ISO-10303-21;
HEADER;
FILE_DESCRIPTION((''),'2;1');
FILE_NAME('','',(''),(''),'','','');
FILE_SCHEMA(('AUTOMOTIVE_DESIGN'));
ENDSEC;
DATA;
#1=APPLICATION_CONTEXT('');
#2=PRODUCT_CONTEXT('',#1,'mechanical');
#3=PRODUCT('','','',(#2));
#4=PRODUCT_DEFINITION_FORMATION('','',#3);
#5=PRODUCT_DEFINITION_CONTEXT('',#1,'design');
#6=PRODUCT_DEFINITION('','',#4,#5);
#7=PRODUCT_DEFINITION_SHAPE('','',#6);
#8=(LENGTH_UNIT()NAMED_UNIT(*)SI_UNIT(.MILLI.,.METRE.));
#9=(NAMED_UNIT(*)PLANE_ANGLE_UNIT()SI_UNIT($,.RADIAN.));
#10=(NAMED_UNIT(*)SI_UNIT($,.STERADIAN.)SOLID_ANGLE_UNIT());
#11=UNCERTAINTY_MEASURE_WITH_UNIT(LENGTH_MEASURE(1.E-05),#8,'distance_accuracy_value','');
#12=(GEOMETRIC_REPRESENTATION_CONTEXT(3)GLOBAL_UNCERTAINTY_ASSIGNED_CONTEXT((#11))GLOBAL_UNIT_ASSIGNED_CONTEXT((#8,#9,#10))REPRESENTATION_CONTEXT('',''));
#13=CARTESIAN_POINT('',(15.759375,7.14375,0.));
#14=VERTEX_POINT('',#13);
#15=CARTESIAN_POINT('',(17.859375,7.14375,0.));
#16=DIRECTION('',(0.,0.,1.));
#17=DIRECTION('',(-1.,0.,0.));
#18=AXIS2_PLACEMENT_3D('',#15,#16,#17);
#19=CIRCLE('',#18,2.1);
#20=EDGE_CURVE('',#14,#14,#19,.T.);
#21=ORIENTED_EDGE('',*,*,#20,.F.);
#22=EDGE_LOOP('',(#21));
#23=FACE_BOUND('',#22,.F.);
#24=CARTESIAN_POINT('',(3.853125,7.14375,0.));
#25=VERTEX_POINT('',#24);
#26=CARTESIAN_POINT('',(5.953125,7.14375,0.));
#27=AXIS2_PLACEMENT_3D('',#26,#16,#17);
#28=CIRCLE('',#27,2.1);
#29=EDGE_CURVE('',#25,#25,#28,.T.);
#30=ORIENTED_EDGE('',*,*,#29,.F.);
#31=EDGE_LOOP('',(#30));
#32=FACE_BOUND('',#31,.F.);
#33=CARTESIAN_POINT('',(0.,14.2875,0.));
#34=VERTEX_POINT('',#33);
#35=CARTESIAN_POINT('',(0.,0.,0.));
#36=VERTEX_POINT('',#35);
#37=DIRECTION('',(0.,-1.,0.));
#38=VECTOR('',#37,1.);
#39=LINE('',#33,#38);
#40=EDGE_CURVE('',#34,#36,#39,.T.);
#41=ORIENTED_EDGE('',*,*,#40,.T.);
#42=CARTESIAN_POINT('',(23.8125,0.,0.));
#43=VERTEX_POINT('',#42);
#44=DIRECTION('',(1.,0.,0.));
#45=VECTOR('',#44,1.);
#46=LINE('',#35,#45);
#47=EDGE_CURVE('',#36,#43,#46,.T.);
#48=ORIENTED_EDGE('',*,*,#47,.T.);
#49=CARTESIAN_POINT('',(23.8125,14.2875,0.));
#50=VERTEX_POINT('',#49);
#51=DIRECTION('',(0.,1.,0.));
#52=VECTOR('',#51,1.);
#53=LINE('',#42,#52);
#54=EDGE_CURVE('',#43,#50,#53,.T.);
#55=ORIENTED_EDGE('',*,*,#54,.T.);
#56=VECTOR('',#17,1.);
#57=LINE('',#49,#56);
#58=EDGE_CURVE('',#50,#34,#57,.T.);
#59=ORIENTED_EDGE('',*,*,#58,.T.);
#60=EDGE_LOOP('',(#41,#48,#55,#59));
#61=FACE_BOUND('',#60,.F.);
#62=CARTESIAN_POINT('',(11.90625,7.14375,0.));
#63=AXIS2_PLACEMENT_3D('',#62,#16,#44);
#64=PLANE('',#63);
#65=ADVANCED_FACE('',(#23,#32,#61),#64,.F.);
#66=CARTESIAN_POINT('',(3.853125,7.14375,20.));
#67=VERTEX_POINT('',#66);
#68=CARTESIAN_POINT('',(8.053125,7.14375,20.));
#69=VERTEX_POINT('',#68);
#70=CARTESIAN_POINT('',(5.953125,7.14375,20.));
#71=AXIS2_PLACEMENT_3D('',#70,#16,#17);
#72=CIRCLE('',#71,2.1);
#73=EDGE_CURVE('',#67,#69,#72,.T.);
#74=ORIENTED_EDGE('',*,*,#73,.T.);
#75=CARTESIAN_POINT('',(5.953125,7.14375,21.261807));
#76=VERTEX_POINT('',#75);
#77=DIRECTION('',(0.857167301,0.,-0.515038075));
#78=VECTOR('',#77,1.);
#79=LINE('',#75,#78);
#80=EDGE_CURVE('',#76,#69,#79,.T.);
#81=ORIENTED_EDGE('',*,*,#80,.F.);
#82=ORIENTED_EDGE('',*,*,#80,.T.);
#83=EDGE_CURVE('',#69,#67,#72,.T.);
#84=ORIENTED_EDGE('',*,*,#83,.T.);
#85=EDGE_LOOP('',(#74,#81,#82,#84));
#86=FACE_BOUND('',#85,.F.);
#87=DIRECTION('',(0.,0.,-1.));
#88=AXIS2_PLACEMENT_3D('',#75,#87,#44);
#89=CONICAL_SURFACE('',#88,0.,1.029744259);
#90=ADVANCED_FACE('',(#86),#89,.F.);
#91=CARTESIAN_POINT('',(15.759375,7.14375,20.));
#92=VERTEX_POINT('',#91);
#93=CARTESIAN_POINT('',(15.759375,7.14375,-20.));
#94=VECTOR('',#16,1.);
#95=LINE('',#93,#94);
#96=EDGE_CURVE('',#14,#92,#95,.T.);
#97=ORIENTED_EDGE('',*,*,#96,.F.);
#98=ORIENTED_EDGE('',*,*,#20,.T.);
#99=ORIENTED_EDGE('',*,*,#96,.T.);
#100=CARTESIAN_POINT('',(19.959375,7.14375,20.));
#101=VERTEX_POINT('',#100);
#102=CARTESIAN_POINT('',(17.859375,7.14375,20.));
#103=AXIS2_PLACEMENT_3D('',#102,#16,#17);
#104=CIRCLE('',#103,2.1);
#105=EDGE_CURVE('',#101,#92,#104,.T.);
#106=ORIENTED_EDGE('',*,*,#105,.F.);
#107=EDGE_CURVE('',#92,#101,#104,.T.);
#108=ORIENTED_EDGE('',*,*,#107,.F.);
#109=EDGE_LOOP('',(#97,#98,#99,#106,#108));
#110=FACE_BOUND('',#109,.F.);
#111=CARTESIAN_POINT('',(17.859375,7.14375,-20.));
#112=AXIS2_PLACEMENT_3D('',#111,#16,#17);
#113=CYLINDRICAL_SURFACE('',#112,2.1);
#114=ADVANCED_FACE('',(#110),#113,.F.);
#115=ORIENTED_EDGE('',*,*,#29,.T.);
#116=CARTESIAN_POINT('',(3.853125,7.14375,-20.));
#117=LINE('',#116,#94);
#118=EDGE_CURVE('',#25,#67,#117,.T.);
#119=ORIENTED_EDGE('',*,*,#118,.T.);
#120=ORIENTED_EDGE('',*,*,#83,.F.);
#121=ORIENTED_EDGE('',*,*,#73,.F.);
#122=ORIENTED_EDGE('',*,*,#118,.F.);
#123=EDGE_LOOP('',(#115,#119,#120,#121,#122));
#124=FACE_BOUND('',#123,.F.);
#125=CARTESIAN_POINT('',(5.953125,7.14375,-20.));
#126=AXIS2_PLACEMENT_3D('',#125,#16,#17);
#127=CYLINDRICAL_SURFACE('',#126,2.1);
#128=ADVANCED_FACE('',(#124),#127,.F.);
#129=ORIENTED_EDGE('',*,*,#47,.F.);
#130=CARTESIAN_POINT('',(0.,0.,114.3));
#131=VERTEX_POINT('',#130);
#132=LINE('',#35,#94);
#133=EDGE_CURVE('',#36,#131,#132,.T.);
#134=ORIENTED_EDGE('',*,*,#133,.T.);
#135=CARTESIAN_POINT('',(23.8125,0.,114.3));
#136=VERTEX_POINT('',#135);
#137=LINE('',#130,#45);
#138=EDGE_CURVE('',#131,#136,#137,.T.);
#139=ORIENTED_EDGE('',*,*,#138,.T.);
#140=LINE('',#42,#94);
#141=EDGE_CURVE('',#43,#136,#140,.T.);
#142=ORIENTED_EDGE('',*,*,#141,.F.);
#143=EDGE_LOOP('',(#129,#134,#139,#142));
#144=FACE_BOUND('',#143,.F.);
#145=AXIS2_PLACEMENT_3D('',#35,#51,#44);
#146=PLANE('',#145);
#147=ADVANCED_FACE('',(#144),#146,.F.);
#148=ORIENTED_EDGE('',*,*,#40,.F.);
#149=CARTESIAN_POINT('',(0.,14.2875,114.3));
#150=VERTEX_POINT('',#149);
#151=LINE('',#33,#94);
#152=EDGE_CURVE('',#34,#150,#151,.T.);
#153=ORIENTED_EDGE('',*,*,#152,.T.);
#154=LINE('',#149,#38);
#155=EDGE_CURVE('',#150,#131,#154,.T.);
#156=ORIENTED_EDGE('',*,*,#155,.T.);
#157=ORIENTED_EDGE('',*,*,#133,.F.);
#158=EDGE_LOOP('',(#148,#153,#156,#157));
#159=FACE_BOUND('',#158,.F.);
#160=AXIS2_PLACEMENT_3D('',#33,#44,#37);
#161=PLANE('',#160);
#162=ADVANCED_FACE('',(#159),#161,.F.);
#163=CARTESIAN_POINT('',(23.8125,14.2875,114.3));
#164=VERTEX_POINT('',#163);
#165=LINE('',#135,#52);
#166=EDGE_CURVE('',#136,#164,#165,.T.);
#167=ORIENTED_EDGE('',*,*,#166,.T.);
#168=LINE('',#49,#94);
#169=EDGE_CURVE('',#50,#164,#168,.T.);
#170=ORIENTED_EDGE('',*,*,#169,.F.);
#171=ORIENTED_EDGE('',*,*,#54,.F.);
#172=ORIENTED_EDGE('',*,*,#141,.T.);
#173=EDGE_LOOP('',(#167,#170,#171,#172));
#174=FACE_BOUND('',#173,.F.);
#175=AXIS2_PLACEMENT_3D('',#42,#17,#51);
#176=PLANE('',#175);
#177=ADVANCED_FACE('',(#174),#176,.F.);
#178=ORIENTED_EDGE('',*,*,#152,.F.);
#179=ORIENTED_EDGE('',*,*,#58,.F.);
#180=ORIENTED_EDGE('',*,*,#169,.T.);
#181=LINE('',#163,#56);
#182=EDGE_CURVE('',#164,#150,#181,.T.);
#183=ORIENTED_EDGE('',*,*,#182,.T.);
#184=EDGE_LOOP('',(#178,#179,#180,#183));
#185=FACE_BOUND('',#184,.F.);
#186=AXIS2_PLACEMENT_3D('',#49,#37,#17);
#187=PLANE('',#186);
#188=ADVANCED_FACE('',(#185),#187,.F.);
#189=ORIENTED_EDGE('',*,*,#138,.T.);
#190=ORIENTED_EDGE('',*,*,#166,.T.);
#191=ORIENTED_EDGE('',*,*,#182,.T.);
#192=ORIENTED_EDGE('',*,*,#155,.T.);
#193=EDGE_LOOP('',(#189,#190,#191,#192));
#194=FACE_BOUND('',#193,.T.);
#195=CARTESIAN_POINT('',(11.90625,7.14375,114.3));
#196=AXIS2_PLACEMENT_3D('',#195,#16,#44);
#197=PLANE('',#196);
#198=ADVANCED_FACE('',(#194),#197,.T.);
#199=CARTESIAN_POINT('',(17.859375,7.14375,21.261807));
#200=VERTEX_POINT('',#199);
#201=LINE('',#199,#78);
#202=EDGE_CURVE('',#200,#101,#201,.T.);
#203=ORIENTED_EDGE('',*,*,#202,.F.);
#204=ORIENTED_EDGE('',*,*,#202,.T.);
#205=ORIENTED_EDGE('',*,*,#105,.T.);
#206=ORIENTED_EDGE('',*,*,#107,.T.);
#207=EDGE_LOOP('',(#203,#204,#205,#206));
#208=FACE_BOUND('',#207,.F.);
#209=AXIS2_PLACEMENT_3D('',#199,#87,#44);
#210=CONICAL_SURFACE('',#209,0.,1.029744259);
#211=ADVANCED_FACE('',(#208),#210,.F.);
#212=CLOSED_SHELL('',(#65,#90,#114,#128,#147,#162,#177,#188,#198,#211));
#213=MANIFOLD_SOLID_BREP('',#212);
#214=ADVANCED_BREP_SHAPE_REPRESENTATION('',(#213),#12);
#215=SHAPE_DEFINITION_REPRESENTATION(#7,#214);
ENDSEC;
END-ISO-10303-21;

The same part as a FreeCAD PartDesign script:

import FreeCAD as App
import Part
import Sketcher

V = App.Vector
Q = App.Units.Quantity


def add_polygon(sketch, points):
    """Adds a closed chain of lines whose ends are joined by coincident constraints."""
    first, n = sketch.GeometryCount, len(points)
    for a, b in zip(points, points[1:] + points[:1]):
        sketch.addGeometry(Part.LineSegment(App.Vector(*a, 0), App.Vector(*b, 0)), False)
    for i in range(n):
        sketch.addConstraint(Sketcher.Constraint("Coincident", first + i, 2, first + (i + 1) % n, 1))

doc = App.newDocument("Part")
body = doc.addObject("PartDesign::Body", "Body")

# Sketch on XY plane
sketch1 = body.newObject("Sketcher::SketchObject", "Sketch")
sketch1.AttachmentSupport = (doc.getObject("XY_Plane"), [""])
sketch1.MapMode = "FlatFace"
add_polygon(sketch1, [(23.8125, 14.2875), (0, 14.2875), (0, 0), (23.8125, 0)])  # lines 0-3
sketch1.addConstraint([
    Sketcher.Constraint("Horizontal", 0),
    Sketcher.Constraint("Vertical", 1),
    Sketcher.Constraint("Horizontal", 2),
    Sketcher.Constraint("Vertical", 3),
    Sketcher.Constraint("Coincident", 1, 2, -1, 1),
    Sketcher.Constraint("DistanceX", 0, 2, 0, 1, Q("0.9375 in")),
    Sketcher.Constraint("DistanceY", 1, 2, 1, 1, Q("0.5625 in")),
])
pad1 = body.newObject("PartDesign::Pad", "Pad")
pad1.Profile = sketch1
pad1.Length = Q("4.5 in")

# Sketch on XY plane
sketch2 = body.newObject("Sketcher::SketchObject", "Sketch001")
sketch2.AttachmentSupport = (doc.getObject("XY_Plane"), [""])
sketch2.MapMode = "FlatFace"
sketch2.addGeometry([
    Part.Circle(V(17.859375, 7.14375, 0), V(0, 0, 1), 2.1),
    Part.Circle(V(5.953125, 7.14375, 0), V(0, 0, 1), 2.1),
], False)
sketch2.addConstraint([
    Sketcher.Constraint("Equal", 0, 1),
    Sketcher.Constraint("Horizontal", 0, 3, 1, 3),
    Sketcher.Constraint("Diameter", 0, 4.2),
    Sketcher.Constraint("DistanceX", -1, 1, 0, 3, Q("0.703125 in")),
    Sketcher.Constraint("DistanceY", -1, 1, 0, 3, Q("0.28125 in")),
    Sketcher.Constraint("DistanceX", -1, 1, 1, 3, Q("0.234375 in")),
])
doc.recompute()
hole = body.newObject("PartDesign::Hole", "Hole")
hole.Profile = sketch2
hole.ThreadType = "None"
hole.Diameter = 4.2
hole.DepthType = "Dimension"
hole.Depth = 20
hole.DrillPoint = "Angled"
hole.DrillPointAngle = 118
hole.Reversed = True

doc.recompute()
